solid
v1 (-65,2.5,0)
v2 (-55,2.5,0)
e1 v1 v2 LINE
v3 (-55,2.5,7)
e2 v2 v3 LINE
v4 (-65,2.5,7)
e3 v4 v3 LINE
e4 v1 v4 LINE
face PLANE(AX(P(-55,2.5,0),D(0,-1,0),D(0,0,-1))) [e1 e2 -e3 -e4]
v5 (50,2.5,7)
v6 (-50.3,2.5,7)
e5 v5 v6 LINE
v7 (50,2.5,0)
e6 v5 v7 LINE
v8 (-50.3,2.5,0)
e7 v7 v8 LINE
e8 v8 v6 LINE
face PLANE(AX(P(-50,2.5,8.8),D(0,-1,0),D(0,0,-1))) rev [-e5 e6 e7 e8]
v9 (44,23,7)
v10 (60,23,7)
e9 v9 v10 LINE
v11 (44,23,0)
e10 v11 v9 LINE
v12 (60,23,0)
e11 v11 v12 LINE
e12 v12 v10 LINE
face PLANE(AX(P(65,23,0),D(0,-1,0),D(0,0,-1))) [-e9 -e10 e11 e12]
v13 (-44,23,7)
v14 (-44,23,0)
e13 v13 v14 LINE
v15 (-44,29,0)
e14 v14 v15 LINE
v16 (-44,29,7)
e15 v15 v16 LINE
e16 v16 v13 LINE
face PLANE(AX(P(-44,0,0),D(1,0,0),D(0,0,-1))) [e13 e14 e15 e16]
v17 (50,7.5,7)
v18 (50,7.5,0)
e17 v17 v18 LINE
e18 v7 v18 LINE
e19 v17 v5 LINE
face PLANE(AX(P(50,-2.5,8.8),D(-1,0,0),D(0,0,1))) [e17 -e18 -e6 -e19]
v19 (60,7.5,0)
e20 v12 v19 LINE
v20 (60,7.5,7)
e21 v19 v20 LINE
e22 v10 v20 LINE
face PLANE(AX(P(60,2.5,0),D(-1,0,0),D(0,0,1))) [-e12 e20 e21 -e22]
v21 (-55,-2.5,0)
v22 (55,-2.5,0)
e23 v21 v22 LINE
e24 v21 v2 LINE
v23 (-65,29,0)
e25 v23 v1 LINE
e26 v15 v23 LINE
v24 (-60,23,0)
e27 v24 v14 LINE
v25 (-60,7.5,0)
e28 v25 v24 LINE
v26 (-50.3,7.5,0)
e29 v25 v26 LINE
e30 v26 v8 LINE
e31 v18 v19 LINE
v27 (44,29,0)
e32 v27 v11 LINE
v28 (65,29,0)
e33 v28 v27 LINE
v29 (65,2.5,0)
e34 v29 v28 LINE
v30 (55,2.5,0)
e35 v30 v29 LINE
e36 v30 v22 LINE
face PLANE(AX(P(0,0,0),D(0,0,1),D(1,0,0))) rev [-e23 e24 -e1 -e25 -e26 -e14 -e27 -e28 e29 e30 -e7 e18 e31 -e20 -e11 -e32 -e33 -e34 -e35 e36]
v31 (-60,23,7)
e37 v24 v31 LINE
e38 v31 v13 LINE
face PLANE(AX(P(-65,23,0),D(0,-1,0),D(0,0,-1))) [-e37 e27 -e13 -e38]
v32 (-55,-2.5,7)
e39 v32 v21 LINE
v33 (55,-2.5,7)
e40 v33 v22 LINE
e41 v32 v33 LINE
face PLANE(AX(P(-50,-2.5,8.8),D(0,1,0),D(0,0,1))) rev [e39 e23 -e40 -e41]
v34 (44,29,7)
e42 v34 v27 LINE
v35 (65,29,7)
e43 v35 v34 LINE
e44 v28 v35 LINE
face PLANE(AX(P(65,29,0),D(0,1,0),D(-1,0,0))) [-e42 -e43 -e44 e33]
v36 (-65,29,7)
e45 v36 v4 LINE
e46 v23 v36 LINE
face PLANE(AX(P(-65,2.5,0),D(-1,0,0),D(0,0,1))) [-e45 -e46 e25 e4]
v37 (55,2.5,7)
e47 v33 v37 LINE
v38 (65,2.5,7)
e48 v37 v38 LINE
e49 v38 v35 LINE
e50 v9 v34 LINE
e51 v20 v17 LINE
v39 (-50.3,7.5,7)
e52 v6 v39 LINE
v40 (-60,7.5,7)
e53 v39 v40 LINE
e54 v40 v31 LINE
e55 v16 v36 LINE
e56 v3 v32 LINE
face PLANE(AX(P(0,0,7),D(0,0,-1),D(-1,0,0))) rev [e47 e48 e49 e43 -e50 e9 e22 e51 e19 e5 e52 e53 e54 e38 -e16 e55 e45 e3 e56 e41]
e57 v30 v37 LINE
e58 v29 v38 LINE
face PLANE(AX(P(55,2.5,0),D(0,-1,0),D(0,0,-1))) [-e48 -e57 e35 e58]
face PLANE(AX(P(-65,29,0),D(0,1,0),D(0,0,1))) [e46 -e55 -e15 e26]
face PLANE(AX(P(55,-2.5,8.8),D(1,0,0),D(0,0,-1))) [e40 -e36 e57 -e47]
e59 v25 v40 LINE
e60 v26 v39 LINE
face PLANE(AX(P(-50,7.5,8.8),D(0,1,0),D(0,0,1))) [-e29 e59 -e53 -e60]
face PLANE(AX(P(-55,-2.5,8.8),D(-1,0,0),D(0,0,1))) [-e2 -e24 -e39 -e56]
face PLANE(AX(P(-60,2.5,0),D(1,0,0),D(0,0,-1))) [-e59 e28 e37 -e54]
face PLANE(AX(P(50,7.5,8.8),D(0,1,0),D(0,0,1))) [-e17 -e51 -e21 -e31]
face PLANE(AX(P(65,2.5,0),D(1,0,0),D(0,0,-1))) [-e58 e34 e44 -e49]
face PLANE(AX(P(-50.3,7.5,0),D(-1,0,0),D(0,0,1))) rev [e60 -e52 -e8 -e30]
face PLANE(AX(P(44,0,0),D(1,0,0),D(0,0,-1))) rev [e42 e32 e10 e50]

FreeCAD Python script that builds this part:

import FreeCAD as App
import Part
import Sketcher
from FreeCAD import Vector
Q = App.Units.Quantity

doc = App.newDocument("Part")
params = doc.addObject("Spreadsheet::Sheet", "Params")
for row, (alias, value) in enumerate([
    ("sketch1_width", "100 mm"),
    ("sketch1_height", "5 mm"),
    ("pad1_length", "8.8 mm"),
    ("sketch2_width", "5 mm"),
    ("sketch2_height", "10 mm"),
    ("pad2_length", "8.8 mm"),
    ("sketch3_width", "5 mm"),
    ("sketch3_height", "10 mm"),
    ("pad3_length", "8.8 mm"),
    ("sketch4_width", "5 mm"),
    ("pad4_length", "8.8 mm"),
    ("sketch5_width", "5 mm"),
    ("pad5_length", "8.8 mm"),
    ("sketch6_height", "5 mm"),
    ("sketch6_width", "0.3 mm"),
    ("pocket1_length", "8.8 mm"),
    ("sketch7_width", "5 mm"),
    ("sketch7_height", "20.5 mm"),
    ("pad6_length", "8.8 mm"),
    ("sketch8_width", "5 mm"),
    ("sketch8_height", "20.5 mm"),
    ("pad7_length", "8.8 mm"),
    ("sketch9_width", "15 mm"),
    ("sketch9_height", "6 mm"),
    ("pad8_length", "8.8 mm"),
    ("sketch10_width", "15 mm"),
    ("sketch10_height", "6 mm"),
    ("pad9_length", "8.8 mm"),
    ("sketch11_width", "1.5 mm"),
    ("pad10_length", "8.8 mm"),
    ("sketch12_width", "1.5 mm"),
    ("pad11_length", "8.8 mm"),
    ("sketch13_width", "15 mm"),
    ("sketch13_width2", "10 mm"),
    ("sketch13_width3", "110 mm"),
    ("sketch13_height", "5 mm"),
    ("sketch13_width4", "1.5 mm"),
    ("pocket2_length", "1.8 mm"),
    ("sketch14_width", "1.5 mm"),
    ("pocket3_length", "10 mm"),
    ("sketch15_width", "1.5 mm"),
    ("pocket4_length", "10 mm"),
    ("sketch16_width", "6 mm"),
    ("sketch16_height", "7 mm"),
    ("pad12_length", "5 mm"),
    ("sketch17_width", "6 mm"),
    ("sketch17_height", "7 mm"),
    ("pad13_length", "5 mm"),
    ("sketch18_width", "6 mm"),
    ("sketch18_height", "7 mm"),
    ("pad14_length", "1 mm"),
    ("sketch19_width", "6 mm"),
    ("sketch19_height", "7 mm"),
    ("pad15_length", "1 mm"),
], start=1):
    params.set(f"A{row}", alias)
    params.set(f"B{row}", "=" + value)
    params.setAlias(f"B{row}", alias)

body = doc.addObject("PartDesign::Body", "Body")

# Sketch on XY plane
sketch1 = body.newObject("Sketcher::SketchObject", "Sketch")
sketch1.AttachmentSupport = (doc.getObject("XY_Plane"), [""])
sketch1.MapMode = "FlatFace"
sketch1.addGeometry(Part.LineSegment(Vector(-50, 2, 0), Vector(-50, -2, 0)), False)
sketch1.addGeometry(Part.LineSegment(Vector(-50, -2, 0), Vector(50, -2, 0)), False)
sketch1.addGeometry(Part.LineSegment(Vector(50, -2, 0), Vector(50, 2, 0)), False)
sketch1.addGeometry(Part.LineSegment(Vector(50, 2, 0), Vector(-50, 2, 0)), False)
sketch1.addConstraint(Sketcher.Constraint("Coincident", 0, 2, 1, 1))
sketch1.addConstraint(Sketcher.Constraint("Coincident", 1, 2, 2, 1))
sketch1.addConstraint(Sketcher.Constraint("Coincident", 2, 2, 3, 1))
sketch1.addConstraint(Sketcher.Constraint("Coincident", 3, 2, 0, 1))
sketch1.addConstraint(Sketcher.Constraint("Vertical", 0))
sketch1.addConstraint(Sketcher.Constraint("Horizontal", 1))
sketch1.addConstraint(Sketcher.Constraint("Vertical", 2))
sketch1.addConstraint(Sketcher.Constraint("Horizontal", 3))
sketch1.addConstraint(Sketcher.Constraint("Symmetric", 0, 2, 2, 2, -1, 1))
sketch1.addConstraint(Sketcher.Constraint("DistanceX", 1, 1, 1, 2, Q("100 mm")))
sketch1.addConstraint(Sketcher.Constraint("DistanceY", 0, 2, 0, 1, Q("5 mm")))
sketch1.setExpression("Constraints[9]", "Params.sketch1_width")
sketch1.setExpression("Constraints[10]", "Params.sketch1_height")
pad1 = body.newObject("PartDesign::Pad", "Pad")
pad1.Profile = sketch1
pad1.setExpression("Length", "Params.pad1_length")

# Sketch on XY plane
sketch2 = body.newObject("Sketcher::SketchObject", "Sketch001")
sketch2.AttachmentSupport = (doc.getObject("XY_Plane"), [""])
sketch2.MapMode = "FlatFace"
sketch2.addGeometry(Part.LineSegment(Vector(55, 8, 0), Vector(55, -2, 0)), False)
sketch2.addGeometry(Part.LineSegment(Vector(55, -2, 0), Vector(50, -2, 0)), False)
sketch2.addGeometry(Part.LineSegment(Vector(50, -2, 0), Vector(50, 8, 0)), False)
sketch2.addGeometry(Part.LineSegment(Vector(50, 8, 0), Vector(55, 8, 0)), False)
sketch2.addConstraint(Sketcher.Constraint("Coincident", 0, 2, 1, 1))
sketch2.addConstraint(Sketcher.Constraint("Coincident", 1, 2, 2, 1))
sketch2.addConstraint(Sketcher.Constraint("Coincident", 2, 2, 3, 1))
sketch2.addConstraint(Sketcher.Constraint("Coincident", 3, 2, 0, 1))
sketch2.addConstraint(Sketcher.Constraint("Vertical", 0))
sketch2.addConstraint(Sketcher.Constraint("Horizontal", 1))
sketch2.addConstraint(Sketcher.Constraint("Vertical", 2))
sketch2.addConstraint(Sketcher.Constraint("Horizontal", 3))
sketch2.addConstraint(Sketcher.Constraint("DistanceX", 1, 2, 1, 1, Q("5 mm")))
sketch2.addConstraint(Sketcher.Constraint("DistanceY", 0, 2, 0, 1, Q("10 mm")))
sketch2.addConstraint(Sketcher.Constraint("DistanceX", -1, 1, 0, 2, Q("55 mm")))
sketch2.addConstraint(Sketcher.Constraint("DistanceY", 0, 2, -1, 1, Q("2.5 mm")))
sketch2.setExpression("Constraints[8]", "Params.sketch2_width")
sketch2.setExpression("Constraints[9]", "Params.sketch2_height")
pad2 = body.newObject("PartDesign::Pad", "Pad001")
pad2.Profile = sketch2
pad2.setExpression("Length", "Params.pad2_length")

# Sketch on XY plane
sketch3 = body.newObject("Sketcher::SketchObject", "Sketch002")
sketch3.AttachmentSupport = (doc.getObject("XY_Plane"), [""])
sketch3.MapMode = "FlatFace"
sketch3.addGeometry(Part.LineSegment(Vector(-50, 8, 0), Vector(-50, -2, 0)), False)
sketch3.addGeometry(Part.LineSegment(Vector(-50, -2, 0), Vector(-55, -2, 0)), False)
sketch3.addGeometry(Part.LineSegment(Vector(-55, -2, 0), Vector(-55, 8, 0)), False)
sketch3.addGeometry(Part.LineSegment(Vector(-55, 8, 0), Vector(-50, 8, 0)), False)
sketch3.addConstraint(Sketcher.Constraint("Coincident", 0, 2, 1, 1))
sketch3.addConstraint(Sketcher.Constraint("Coincident", 1, 2, 2, 1))
sketch3.addConstraint(Sketcher.Constraint("Coincident", 2, 2, 3, 1))
sketch3.addConstraint(Sketcher.Constraint("Coincident", 3, 2, 0, 1))
sketch3.addConstraint(Sketcher.Constraint("Vertical", 0))
sketch3.addConstraint(Sketcher.Constraint("Horizontal", 1))
sketch3.addConstraint(Sketcher.Constraint("Vertical", 2))
sketch3.addConstraint(Sketcher.Constraint("Horizontal", 3))
sketch3.addConstraint(Sketcher.Constraint("DistanceX", 1, 2, 1, 1, Q("5 mm")))
sketch3.addConstraint(Sketcher.Constraint("DistanceY", 0, 2, 0, 1, Q("10 mm")))
sketch3.addConstraint(Sketcher.Constraint("DistanceX", 0, 2, -1, 1, Q("50 mm")))
sketch3.addConstraint(Sketcher.Constraint("DistanceY", 0, 2, -1, 1, Q("2.5 mm")))
sketch3.setExpression("Constraints[8]", "Params.sketch3_width")
sketch3.setExpression("Constraints[9]", "Params.sketch3_height")
pad3 = body.newObject("PartDesign::Pad", "Pad002")
pad3.Profile = sketch3
pad3.setExpression("Length", "Params.pad3_length")

# Sketch on XY plane
sketch4 = body.newObject("Sketcher::SketchObject", "Sketch003")
sketch4.AttachmentSupport = (doc.getObject("XY_Plane"), [""])
sketch4.MapMode = "FlatFace"
sketch4.AttachmentOffset = App.Placement(Vector(0, 0, 8.8), App.Rotation())
sketch4.addGeometry(Part.LineSegment(Vector(-60, 8, 0), Vector(-60, 2, 0)), False)
sketch4.addGeometry(Part.LineSegment(Vector(-60, 2, 0), Vector(-55, 2, 0)), False)
sketch4.addGeometry(Part.LineSegment(Vector(-55, 2, 0), Vector(-55, 8, 0)), False)
sketch4.addGeometry(Part.LineSegment(Vector(-55, 8, 0), Vector(-60, 8, 0)), False)
sketch4.addConstraint(Sketcher.Constraint("Coincident", 0, 2, 1, 1))
sketch4.addConstraint(Sketcher.Constraint("Coincident", 1, 2, 2, 1))
sketch4.addConstraint(Sketcher.Constraint("Coincident", 2, 2, 3, 1))
sketch4.addConstraint(Sketcher.Constraint("Coincident", 3, 2, 0, 1))
sketch4.addConstraint(Sketcher.Constraint("Vertical", 0))
sketch4.addConstraint(Sketcher.Constraint("Horizontal", 1))
sketch4.addConstraint(Sketcher.Constraint("Vertical", 2))
sketch4.addConstraint(Sketcher.Constraint("Horizontal", 3))
sketch4.addConstraint(Sketcher.Constraint("Equal", 3, 0))
sketch4.addConstraint(Sketcher.Constraint("DistanceX", 1, 1, 1, 2, Q("5 mm")))
sketch4.addConstraint(Sketcher.Constraint("DistanceX", 0, 2, -1, 1, Q("60 mm")))
sketch4.addConstraint(Sketcher.Constraint("DistanceY", -1, 1, 0, 2, Q("2.5 mm")))
sketch4.setExpression("Constraints[9]", "Params.sketch4_width")
pad4 = body.newObject("PartDesign::Pad", "Pad003")
pad4.Profile = sketch4
pad4.setExpression("Length", "Params.pad4_length")
pad4.Reversed = True

# Sketch on XY plane
sketch5 = body.newObject("Sketcher::SketchObject", "Sketch004")
sketch5.AttachmentSupport = (doc.getObject("XY_Plane"), [""])
sketch5.MapMode = "FlatFace"
sketch5.AttachmentOffset = App.Placement(Vector(0, 0, 8.8), App.Rotation())
sketch5.addGeometry(Part.LineSegment(Vector(55, 8, 0), Vector(55, 2, 0)), False)
sketch5.addGeometry(Part.LineSegment(Vector(55, 2, 0), Vector(60, 2, 0)), False)
sketch5.addGeometry(Part.LineSegment(Vector(60, 2, 0), Vector(60, 8, 0)), False)
sketch5.addGeometry(Part.LineSegment(Vector(60, 8, 0), Vector(55, 8, 0)), False)
sketch5.addConstraint(Sketcher.Constraint("Coincident", 0, 2, 1, 1))
sketch5.addConstraint(Sketcher.Constraint("Coincident", 1, 2, 2, 1))
sketch5.addConstraint(Sketcher.Constraint("Coincident", 2, 2, 3, 1))
sketch5.addConstraint(Sketcher.Constraint("Coincident", 3, 2, 0, 1))
sketch5.addConstraint(Sketcher.Constraint("Vertical", 0))
sketch5.addConstraint(Sketcher.Constraint("Horizontal", 1))
sketch5.addConstraint(Sketcher.Constraint("Vertical", 2))
sketch5.addConstraint(Sketcher.Constraint("Horizontal", 3))
sketch5.addConstraint(Sketcher.Constraint("Equal", 3, 0))
sketch5.addConstraint(Sketcher.Constraint("DistanceX", 1, 1, 1, 2, Q("5 mm")))
sketch5.addConstraint(Sketcher.Constraint("DistanceX", -1, 1, 0, 2, Q("55 mm")))
sketch5.addConstraint(Sketcher.Constraint("DistanceY", -1, 1, 0, 2, Q("2.5 mm")))
sketch5.setExpression("Constraints[9]", "Params.sketch5_width")
pad5 = body.newObject("PartDesign::Pad", "Pad004")
pad5.Profile = sketch5
pad5.setExpression("Length", "Params.pad5_length")
pad5.Reversed = True

# Sketch on XY plane
sketch6 = body.newObject("Sketcher::SketchObject", "Sketch005")
sketch6.AttachmentSupport = (doc.getObject("XY_Plane"), [""])
sketch6.MapMode = "FlatFace"
sketch6.AttachmentOffset = App.Placement(Vector(0, 0, 8.8), App.Rotation())
sketch6.addGeometry(Part.LineSegment(Vector(-50.3, 7.5, 0), Vector(-50.3, 2.5, 0)), False)
sketch6.addGeometry(Part.LineSegment(Vector(-50.3, 2.5, 0), Vector(-50, 2.5, 0)), False)
sketch6.addGeometry(Part.LineSegment(Vector(-50, 2.5, 0), Vector(-50, 7.5, 0)), False)
sketch6.addGeometry(Part.LineSegment(Vector(-50, 7.5, 0), Vector(-50.3, 7.5, 0)), False)
sketch6.addConstraint(Sketcher.Constraint("Coincident", 0, 2, 1, 1))
sketch6.addConstraint(Sketcher.Constraint("Coincident", 1, 2, 2, 1))
sketch6.addConstraint(Sketcher.Constraint("Coincident", 2, 2, 3, 1))
sketch6.addConstraint(Sketcher.Constraint("Coincident", 3, 2, 0, 1))
sketch6.addConstraint(Sketcher.Constraint("Vertical", 0))
sketch6.addConstraint(Sketcher.Constraint("Horizontal", 1))
sketch6.addConstraint(Sketcher.Constraint("Vertical", 2))
sketch6.addConstraint(Sketcher.Constraint("Horizontal", 3))
sketch6.addConstraint(Sketcher.Constraint("DistanceY", 0, 2, 0, 1, Q("5 mm")))
sketch6.addConstraint(Sketcher.Constraint("DistanceX", 1, 1, 1, 2, Q("0.3 mm")))
sketch6.addConstraint(Sketcher.Constraint("DistanceX", 1, 2, -1, 1, Q("50 mm")))
sketch6.addConstraint(Sketcher.Constraint("DistanceY", -1, 1, 0, 2, Q("2.5 mm")))
sketch6.setExpression("Constraints[8]", "Params.sketch6_height")
sketch6.setExpression("Constraints[9]", "Params.sketch6_width")
pocket1 = body.newObject("PartDesign::Pocket", "Pocket")
pocket1.Profile = sketch6
pocket1.setExpression("Length", "Params.pocket1_length")

# Sketch on XY plane
sketch7 = body.newObject("Sketcher::SketchObject", "Sketch006")
sketch7.AttachmentSupport = (doc.getObject("XY_Plane"), [""])
sketch7.MapMode = "FlatFace"
sketch7.AttachmentOffset = App.Placement(Vector(0, 0, 8.8), App.Rotation())
sketch7.addGeometry(Part.LineSegment(Vector(-65, 23, 0), Vector(-65, 2, 0)), False)
sketch7.addGeometry(Part.LineSegment(Vector(-65, 2, 0), Vector(-60, 2, 0)), False)
sketch7.addGeometry(Part.LineSegment(Vector(-60, 2, 0), Vector(-60, 23, 0)), False)
sketch7.addGeometry(Part.LineSegment(Vector(-60, 23, 0), Vector(-65, 23, 0)), False)
sketch7.addConstraint(Sketcher.Constraint("Coincident", 0, 2, 1, 1))
sketch7.addConstraint(Sketcher.Constraint("Coincident", 1, 2, 2, 1))
sketch7.addConstraint(Sketcher.Constraint("Coincident", 2, 2, 3, 1))
sketch7.addConstraint(Sketcher.Constraint("Coincident", 3, 2, 0, 1))
sketch7.addConstraint(Sketcher.Constraint("Vertical", 0))
sketch7.addConstraint(Sketcher.Constraint("Horizontal", 1))
sketch7.addConstraint(Sketcher.Constraint("Vertical", 2))
sketch7.addConstraint(Sketcher.Constraint("Horizontal", 3))
sketch7.addConstraint(Sketcher.Constraint("DistanceX", 1, 1, 1, 2, Q("5 mm")))
sketch7.addConstraint(Sketcher.Constraint("DistanceY", 0, 2, 0, 1, Q("20.5 mm")))
sketch7.addConstraint(Sketcher.Constraint("DistanceX", 0, 2, -1, 1, Q("65 mm")))
sketch7.addConstraint(Sketcher.Constraint("DistanceY", -1, 1, 2, 2, Q("23 mm")))
sketch7.setExpression("Constraints[8]", "Params.sketch7_width")
sketch7.setExpression("Constraints[9]", "Params.sketch7_height")
pad6 = body.newObject("PartDesign::Pad", "Pad005")
pad6.Profile = sketch7
pad6.setExpression("Length", "Params.pad6_length")
pad6.Reversed = True

# Sketch on XY plane
sketch8 = body.newObject("Sketcher::SketchObject", "Sketch007")
sketch8.AttachmentSupport = (doc.getObject("XY_Plane"), [""])
sketch8.MapMode = "FlatFace"
sketch8.AttachmentOffset = App.Placement(Vector(0, 0, 8.8), App.Rotation())
sketch8.addGeometry(Part.LineSegment(Vector(60, 23, 0), Vector(60, 2, 0)), False)
sketch8.addGeometry(Part.LineSegment(Vector(60, 2, 0), Vector(65, 2, 0)), False)
sketch8.addGeometry(Part.LineSegment(Vector(65, 2, 0), Vector(65, 23, 0)), False)
sketch8.addGeometry(Part.LineSegment(Vector(65, 23, 0), Vector(60, 23, 0)), False)
sketch8.addConstraint(Sketcher.Constraint("Coincident", 0, 2, 1, 1))
sketch8.addConstraint(Sketcher.Constraint("Coincident", 1, 2, 2, 1))
sketch8.addConstraint(Sketcher.Constraint("Coincident", 2, 2, 3, 1))
sketch8.addConstraint(Sketcher.Constraint("Coincident", 3, 2, 0, 1))
sketch8.addConstraint(Sketcher.Constraint("Vertical", 0))
sketch8.addConstraint(Sketcher.Constraint("Horizontal", 1))
sketch8.addConstraint(Sketcher.Constraint("Vertical", 2))
sketch8.addConstraint(Sketcher.Constraint("Horizontal", 3))
sketch8.addConstraint(Sketcher.Constraint("DistanceX", 1, 1, 1, 2, Q("5 mm")))
sketch8.addConstraint(Sketcher.Constraint("DistanceY", 0, 2, 0, 1, Q("20.5 mm")))
sketch8.addConstraint(Sketcher.Constraint("DistanceX", -1, 1, 0, 2, Q("60 mm")))
sketch8.addConstraint(Sketcher.Constraint("DistanceY", -1, 1, 2, 2, Q("23 mm")))
sketch8.setExpression("Constraints[8]", "Params.sketch8_width")
sketch8.setExpression("Constraints[9]", "Params.sketch8_height")
pad7 = body.newObject("PartDesign::Pad", "Pad006")
pad7.Profile = sketch8
pad7.setExpression("Length", "Params.pad7_length")
pad7.Reversed = True

# Sketch on XY plane
sketch9 = body.newObject("Sketcher::SketchObject", "Sketch008")
sketch9.AttachmentSupport = (doc.getObject("XY_Plane"), [""])
sketch9.MapMode = "FlatFace"
sketch9.AttachmentOffset = App.Placement(Vector(0, 0, 8.8), App.Rotation())
sketch9.addGeometry(Part.LineSegment(Vector(-65, 29, 0), Vector(-65, 23, 0)), False)
sketch9.addGeometry(Part.LineSegment(Vector(-65, 23, 0), Vector(-50, 23, 0)), False)
sketch9.addGeometry(Part.LineSegment(Vector(-50, 23, 0), Vector(-50, 29, 0)), False)
sketch9.addGeometry(Part.LineSegment(Vector(-50, 29, 0), Vector(-65, 29, 0)), False)
sketch9.addConstraint(Sketcher.Constraint("Coincident", 0, 2, 1, 1))
sketch9.addConstraint(Sketcher.Constraint("Coincident", 1, 2, 2, 1))
sketch9.addConstraint(Sketcher.Constraint("Coincident", 2, 2, 3, 1))
sketch9.addConstraint(Sketcher.Constraint("Coincident", 3, 2, 0, 1))
sketch9.addConstraint(Sketcher.Constraint("Vertical", 0))
sketch9.addConstraint(Sketcher.Constraint("Horizontal", 1))
sketch9.addConstraint(Sketcher.Constraint("Vertical", 2))
sketch9.addConstraint(Sketcher.Constraint("Horizontal", 3))
sketch9.addConstraint(Sketcher.Constraint("DistanceX", 1, 1, 1, 2, Q("15 mm")))
sketch9.addConstraint(Sketcher.Constraint("DistanceY", 0, 2, 0, 1, Q("6 mm")))
sketch9.addConstraint(Sketcher.Constraint("DistanceX", 0, 2, -1, 1, Q("65 mm")))
sketch9.addConstraint(Sketcher.Constraint("DistanceY", -1, 1, 0, 2, Q("23 mm")))
sketch9.setExpression("Constraints[8]", "Params.sketch9_width")
sketch9.setExpression("Constraints[9]", "Params.sketch9_height")
pad8 = body.newObject("PartDesign::Pad", "Pad007")
pad8.Profile = sketch9
pad8.setExpression("Length", "Params.pad8_length")
pad8.Reversed = True

# Sketch on XY plane
sketch10 = body.newObject("Sketcher::SketchObject", "Sketch009")
sketch10.AttachmentSupport = (doc.getObject("XY_Plane"), [""])
sketch10.MapMode = "FlatFace"
sketch10.AttachmentOffset = App.Placement(Vector(0, 0, 8.8), App.Rotation())
sketch10.addGeometry(Part.LineSegment(Vector(50, 29, 0), Vector(50, 23, 0)), False)
sketch10.addGeometry(Part.LineSegment(Vector(50, 23, 0), Vector(65, 23, 0)), False)
sketch10.addGeometry(Part.LineSegment(Vector(65, 23, 0), Vector(65, 29, 0)), False)
sketch10.addGeometry(Part.LineSegment(Vector(65, 29, 0), Vector(50, 29, 0)), False)
sketch10.addConstraint(Sketcher.Constraint("Coincident", 0, 2, 1, 1))
sketch10.addConstraint(Sketcher.Constraint("Coincident", 1, 2, 2, 1))
sketch10.addConstraint(Sketcher.Constraint("Coincident", 2, 2, 3, 1))
sketch10.addConstraint(Sketcher.Constraint("Coincident", 3, 2, 0, 1))
sketch10.addConstraint(Sketcher.Constraint("Vertical", 0))
sketch10.addConstraint(Sketcher.Constraint("Horizontal", 1))
sketch10.addConstraint(Sketcher.Constraint("Vertical", 2))
sketch10.addConstraint(Sketcher.Constraint("Horizontal", 3))
sketch10.addConstraint(Sketcher.Constraint("DistanceX", 1, 1, 1, 2, Q("15 mm")))
sketch10.addConstraint(Sketcher.Constraint("DistanceY", 0, 2, 0, 1, Q("6 mm")))
sketch10.addConstraint(Sketcher.Constraint("DistanceX", -1, 1, 0, 2, Q("50 mm")))
sketch10.addConstraint(Sketcher.Constraint("DistanceY", -1, 1, 0, 2, Q("23 mm")))
sketch10.setExpression("Constraints[8]", "Params.sketch10_width")
sketch10.setExpression("Constraints[9]", "Params.sketch10_height")
pad9 = body.newObject("PartDesign::Pad", "Pad008")
pad9.Profile = sketch10
pad9.setExpression("Length", "Params.pad9_length")
pad9.Reversed = True

# Sketch on XY plane
sketch11 = body.newObject("Sketcher::SketchObject", "Sketch010")
sketch11.AttachmentSupport = (doc.getObject("XY_Plane"), [""])
sketch11.MapMode = "FlatFace"
sketch11.AttachmentOffset = App.Placement(Vector(0, 0, 8.8), App.Rotation())
sketch11.addGeometry(Part.LineSegment(Vector(-51.5, 23, 0), Vector(-51.5, 21.5, 0)), False)
sketch11.addGeometry(Part.LineSegment(Vector(-51.5, 21.5, 0), Vector(-50, 21.5, 0)), False)
sketch11.addGeometry(Part.LineSegment(Vector(-50, 21.5, 0), Vector(-50, 23, 0)), False)
sketch11.addGeometry(Part.LineSegment(Vector(-50, 23, 0), Vector(-51.5, 23, 0)), False)
sketch11.addConstraint(Sketcher.Constraint("Coincident", 0, 2, 1, 1))
sketch11.addConstraint(Sketcher.Constraint("Coincident", 1, 2, 2, 1))
sketch11.addConstraint(Sketcher.Constraint("Coincident", 2, 2, 3, 1))
sketch11.addConstraint(Sketcher.Constraint("Coincident", 3, 2, 0, 1))
sketch11.addConstraint(Sketcher.Constraint("Vertical", 0))
sketch11.addConstraint(Sketcher.Constraint("Horizontal", 1))
sketch11.addConstraint(Sketcher.Constraint("Vertical", 2))
sketch11.addConstraint(Sketcher.Constraint("Horizontal", 3))
sketch11.addConstraint(Sketcher.Constraint("Equal", 3, 0))
sketch11.addConstraint(Sketcher.Constraint("DistanceX", 1, 1, 1, 2, Q("1.5 mm")))
sketch11.addConstraint(Sketcher.Constraint("DistanceX", 1, 2, -1, 1, Q("50 mm")))
sketch11.addConstraint(Sketcher.Constraint("DistanceY", -1, 1, 2, 2, Q("23 mm")))
sketch11.setExpression("Constraints[9]", "Params.sketch11_width")
pad10 = body.newObject("PartDesign::Pad", "Pad009")
pad10.Profile = sketch11
pad10.setExpression("Length", "Params.pad10_length")
pad10.Reversed = True

# Sketch on XY plane
sketch12 = body.newObject("Sketcher::SketchObject", "Sketch011")
sketch12.AttachmentSupport = (doc.getObject("XY_Plane"), [""])
sketch12.MapMode = "FlatFace"
sketch12.AttachmentOffset = App.Placement(Vector(0, 0, 8.8), App.Rotation())
sketch12.addGeometry(Part.LineSegment(Vector(50, 23, 0), Vector(50, 21.5, 0)), False)
sketch12.addGeometry(Part.LineSegment(Vector(50, 21.5, 0), Vector(51.5, 21.5, 0)), False)
sketch12.addGeometry(Part.LineSegment(Vector(51.5, 21.5, 0), Vector(51.5, 23, 0)), False)
sketch12.addGeometry(Part.LineSegment(Vector(51.5, 23, 0), Vector(50, 23, 0)), False)
sketch12.addConstraint(Sketcher.Constraint("Coincident", 0, 2, 1, 1))
sketch12.addConstraint(Sketcher.Constraint("Coincident", 1, 2, 2, 1))
sketch12.addConstraint(Sketcher.Constraint("Coincident", 2, 2, 3, 1))
sketch12.addConstraint(Sketcher.Constraint("Coincident", 3, 2, 0, 1))
sketch12.addConstraint(Sketcher.Constraint("Vertical", 0))
sketch12.addConstraint(Sketcher.Constraint("Horizontal", 1))
sketch12.addConstraint(Sketcher.Constraint("Vertical", 2))
sketch12.addConstraint(Sketcher.Constraint("Horizontal", 3))
sketch12.addConstraint(Sketcher.Constraint("Equal", 3, 0))
sketch12.addConstraint(Sketcher.Constraint("DistanceX", 1, 1, 1, 2, Q("1.5 mm")))
sketch12.addConstraint(Sketcher.Constraint("DistanceX", -1, 1, 0, 2, Q("50 mm")))
sketch12.addConstraint(Sketcher.Constraint("DistanceY", -1, 1, 2, 2, Q("23 mm")))
sketch12.setExpression("Constraints[9]", "Params.sketch12_width")
pad11 = body.newObject("PartDesign::Pad", "Pad010")
pad11.Profile = sketch12
pad11.setExpression("Length", "Params.pad11_length")
pad11.Reversed = True

# Sketch on XY plane
sketch13 = body.newObject("Sketcher::SketchObject", "Sketch012")
sketch13.AttachmentSupport = (doc.getObject("XY_Plane"), [""])
sketch13.MapMode = "FlatFace"
sketch13.AttachmentOffset = App.Placement(Vector(0, 0, 8.8), App.Rotation())
sketch13.addGeometry(Part.LineSegment(Vector(-51.5, 23, 0), Vector(-51.5, 21.5, 0)), False)
sketch13.addGeometry(Part.LineSegment(Vector(-51.5, 21.5, 0), Vector(-50, 21.5, 0)), False)
sketch13.addGeometry(Part.LineSegment(Vector(-50, 21.5, 0), Vector(-50, 29, 0)), False)
sketch13.addGeometry(Part.LineSegment(Vector(-50, 29, 0), Vector(-65, 29, 0)), False)
sketch13.addGeometry(Part.LineSegment(Vector(-65, 29, 0), Vector(-65, 2.5, 0)), False)
sketch13.addGeometry(Part.LineSegment(Vector(-65, 2.5, 0), Vector(-55, 2.5, 0)), False)
sketch13.addGeometry(Part.LineSegment(Vector(-55, 2.5, 0), Vector(-55, -2.5, 0)), False)
sketch13.addGeometry(Part.LineSegment(Vector(-55, -2.5, 0), Vector(55, -2.5, 0)), False)
sketch13.addGeometry(Part.LineSegment(Vector(55, -2.5, 0), Vector(55, 2.5, 0)), False)
sketch13.addGeometry(Part.LineSegment(Vector(55, 2.5, 0), Vector(65, 2.5, 0)), False)
sketch13.addGeometry(Part.LineSegment(Vector(65, 2.5, 0), Vector(65, 29, 0)), False)
sketch13.addGeometry(Part.LineSegment(Vector(65, 29, 0), Vector(50, 29, 0)), False)
sketch13.addGeometry(Part.LineSegment(Vector(50, 29, 0), Vector(50, 21.5, 0)), False)
sketch13.addGeometry(Part.LineSegment(Vector(50, 21.5, 0), Vector(51.5, 21.5, 0)), False)
sketch13.addGeometry(Part.LineSegment(Vector(51.5, 21.5, 0), Vector(51.5, 23, 0)), False)
sketch13.addGeometry(Part.LineSegment(Vector(51.5, 23, 0), Vector(60, 23, 0)), False)
sketch13.addGeometry(Part.LineSegment(Vector(60, 23, 0), Vector(60, 7.5, 0)), False)
sketch13.addGeometry(Part.LineSegment(Vector(60, 7.5, 0), Vector(50, 7.5, 0)), False)
sketch13.addGeometry(Part.LineSegment(Vector(50, 7.5, 0), Vector(50, 2.5, 0)), False)
sketch13.addGeometry(Part.LineSegment(Vector(50, 2.5, 0), Vector(-50.3, 2.5, 0)), False)
sketch13.addGeometry(Part.LineSegment(Vector(-50.3, 2.5, 0), Vector(-50.3, 7.5, 0)), False)
sketch13.addGeometry(Part.LineSegment(Vector(-50.3, 7.5, 0), Vector(-60, 7.5, 0)), False)
sketch13.addGeometry(Part.LineSegment(Vector(-60, 7.5, 0), Vector(-60, 23, 0)), False)
sketch13.addGeometry(Part.LineSegment(Vector(-60, 23, 0), Vector(-51.5, 23, 0)), False)
sketch13.addConstraint(Sketcher.Constraint("Coincident", 0, 2, 1, 1))
sketch13.addConstraint(Sketcher.Constraint("Coincident", 1, 2, 2, 1))
sketch13.addConstraint(Sketcher.Constraint("Coincident", 2, 2, 3, 1))
sketch13.addConstraint(Sketcher.Constraint("Coincident", 3, 2, 4, 1))
sketch13.addConstraint(Sketcher.Constraint("Coincident", 4, 2, 5, 1))
sketch13.addConstraint(Sketcher.Constraint("Coincident", 5, 2, 6, 1))
sketch13.addConstraint(Sketcher.Constraint("Coincident", 6, 2, 7, 1))
sketch13.addConstraint(Sketcher.Constraint("Coincident", 7, 2, 8, 1))
sketch13.addConstraint(Sketcher.Constraint("Coincident", 8, 2, 9, 1))
sketch13.addConstraint(Sketcher.Constraint("Coincident", 9, 2, 10, 1))
sketch13.addConstraint(Sketcher.Constraint("Coincident", 10, 2, 11, 1))
sketch13.addConstraint(Sketcher.Constraint("Coincident", 11, 2, 12, 1))
sketch13.addConstraint(Sketcher.Constraint("Coincident", 12, 2, 13, 1))
sketch13.addConstraint(Sketcher.Constraint("Coincident", 13, 2, 14, 1))
sketch13.addConstraint(Sketcher.Constraint("Coincident", 14, 2, 15, 1))
sketch13.addConstraint(Sketcher.Constraint("Coincident", 15, 2, 16, 1))
sketch13.addConstraint(Sketcher.Constraint("Coincident", 16, 2, 17, 1))
sketch13.addConstraint(Sketcher.Constraint("Coincident", 17, 2, 18, 1))
sketch13.addConstraint(Sketcher.Constraint("Coincident", 18, 2, 19, 1))
sketch13.addConstraint(Sketcher.Constraint("Coincident", 19, 2, 20, 1))
sketch13.addConstraint(Sketcher.Constraint("Coincident", 20, 2, 21, 1))
sketch13.addConstraint(Sketcher.Constraint("Coincident", 21, 2, 22, 1))
sketch13.addConstraint(Sketcher.Constraint("Coincident", 22, 2, 23, 1))
sketch13.addConstraint(Sketcher.Constraint("Coincident", 23, 2, 0, 1))
sketch13.addConstraint(Sketcher.Constraint("Vertical", 0))
sketch13.addConstraint(Sketcher.Constraint("Horizontal", 1))
sketch13.addConstraint(Sketcher.Constraint("Vertical", 2))
sketch13.addConstraint(Sketcher.Constraint("Horizontal", 3))
sketch13.addConstraint(Sketcher.Constraint("Vertical", 4))
sketch13.addConstraint(Sketcher.Constraint("Horizontal", 5))
sketch13.addConstraint(Sketcher.Constraint("Vertical", 6))
sketch13.addConstraint(Sketcher.Constraint("Horizontal", 7))
sketch13.addConstraint(Sketcher.Constraint("Vertical", 8))
sketch13.addConstraint(Sketcher.Constraint("Horizontal", 9))
sketch13.addConstraint(Sketcher.Constraint("Vertical", 10))
sketch13.addConstraint(Sketcher.Constraint("Horizontal", 11))
sketch13.addConstraint(Sketcher.Constraint("Vertical", 12))
sketch13.addConstraint(Sketcher.Constraint("Horizontal", 13))
sketch13.addConstraint(Sketcher.Constraint("Vertical", 14))
sketch13.addConstraint(Sketcher.Constraint("Horizontal", 15))
sketch13.addConstraint(Sketcher.Constraint("Vertical", 16))
sketch13.addConstraint(Sketcher.Constraint("Horizontal", 17))
sketch13.addConstraint(Sketcher.Constraint("Vertical", 18))
sketch13.addConstraint(Sketcher.Constraint("Horizontal", 19))
sketch13.addConstraint(Sketcher.Constraint("Vertical", 20))
sketch13.addConstraint(Sketcher.Constraint("Horizontal", 21))
sketch13.addConstraint(Sketcher.Constraint("Vertical", 22))
sketch13.addConstraint(Sketcher.Constraint("Horizontal", 23))
sketch13.addConstraint(Sketcher.Constraint("Symmetric", 5, 2, 7, 2, -1, 1))
sketch13.addConstraint(Sketcher.Constraint("Symmetric", 4, 2, 9, 2, -2))
sketch13.addConstraint(Sketcher.Constraint("Symmetric", 2, 2, 11, 2, -2))
sketch13.addConstraint(Sketcher.Constraint("Symmetric", 0, 2, 13, 2, -2))
sketch13.addConstraint(Sketcher.Constraint("Symmetric", 16, 2, 21, 2, -2))
sketch13.addConstraint(Sketcher.Constraint("Horizontal", 9, 2, 18, 2))
sketch13.addConstraint(Sketcher.Constraint("Horizontal", 15, 2, 22, 2))
sketch13.addConstraint(Sketcher.Constraint("Vertical", 12, 2, 17, 2))
sketch13.addConstraint(Sketcher.Constraint("Equal", 9, 17))
sketch13.addConstraint(Sketcher.Constraint("Equal", 13, 0))
sketch13.addConstraint(Sketcher.Constraint("Equal", 8, 18))
sketch13.addConstraint(Sketcher.Constraint("DistanceX", 3, 2, 3, 1, Q("15 mm")))
sketch13.addConstraint(Sketcher.Constraint("DistanceX", 5, 1, 5, 2, Q("10 mm")))
sketch13.addConstraint(Sketcher.Constraint("DistanceX", 7, 1, 7, 2, Q("110 mm")))
sketch13.addConstraint(Sketcher.Constraint("DistanceY", 6, 2, 6, 1, Q("5 mm")))
sketch13.addConstraint(Sketcher.Constraint("DistanceX", 1, 1, 1, 2, Q("1.5 mm")))
sketch13.addConstraint(Sketcher.Constraint("DistanceX", 19, 2, 19, 1, Q("100.3 mm")))
sketch13.addConstraint(Sketcher.Constraint("DistanceY", 2, 1, 2, 2, Q("7.5 mm")))
sketch13.addConstraint(Sketcher.Constraint("DistanceY", 4, 2, 4, 1, Q("26.5 mm")))
sketch13.setExpression("Constraints[59]", "Params.sketch13_width")
sketch13.setExpression("Constraints[60]", "Params.sketch13_width2")
sketch13.setExpression("Constraints[61]", "Params.sketch13_width3")
sketch13.setExpression("Constraints[62]", "Params.sketch13_height")
sketch13.setExpression("Constraints[63]", "Params.sketch13_width4")
pocket2 = body.newObject("PartDesign::Pocket", "Pocket001")
pocket2.Profile = sketch13
pocket2.setExpression("Length", "Params.pocket2_length")

# Sketch on XY plane
sketch14 = body.newObject("Sketcher::SketchObject", "Sketch013")
sketch14.AttachmentSupport = (doc.getObject("XY_Plane"), [""])
sketch14.MapMode = "FlatFace"
sketch14.AttachmentOffset = App.Placement(Vector(0, 0, 7), App.Rotation())
sketch14.addGeometry(Part.LineSegment(Vector(-51.5, 23, 0), Vector(-51.5, 21.5, 0)), False)
sketch14.addGeometry(Part.LineSegment(Vector(-51.5, 21.5, 0), Vector(-50, 21.5, 0)), False)
sketch14.addGeometry(Part.LineSegment(Vector(-50, 21.5, 0), Vector(-50, 23, 0)), False)
sketch14.addGeometry(Part.LineSegment(Vector(-50, 23, 0), Vector(-51.5, 23, 0)), False)
sketch14.addConstraint(Sketcher.Constraint("Coincident", 0, 2, 1, 1))
sketch14.addConstraint(Sketcher.Constraint("Coincident", 1, 2, 2, 1))
sketch14.addConstraint(Sketcher.Constraint("Coincident", 2, 2, 3, 1))
sketch14.addConstraint(Sketcher.Constraint("Coincident", 3, 2, 0, 1))
sketch14.addConstraint(Sketcher.Constraint("Vertical", 0))
sketch14.addConstraint(Sketcher.Constraint("Horizontal", 1))
sketch14.addConstraint(Sketcher.Constraint("Vertical", 2))
sketch14.addConstraint(Sketcher.Constraint("Horizontal", 3))
sketch14.addConstraint(Sketcher.Constraint("Equal", 3, 0))
sketch14.addConstraint(Sketcher.Constraint("DistanceX", 1, 1, 1, 2, Q("1.5 mm")))
sketch14.addConstraint(Sketcher.Constraint("DistanceX", 1, 2, -1, 1, Q("50 mm")))
sketch14.addConstraint(Sketcher.Constraint("DistanceY", -1, 1, 2, 2, Q("23 mm")))
sketch14.setExpression("Constraints[9]", "Params.sketch14_width")
pocket3 = body.newObject("PartDesign::Pocket", "Pocket002")
pocket3.Profile = sketch14
pocket3.setExpression("Length", "Params.pocket3_length")

# Sketch on XY plane
sketch15 = body.newObject("Sketcher::SketchObject", "Sketch014")
sketch15.AttachmentSupport = (doc.getObject("XY_Plane"), [""])
sketch15.MapMode = "FlatFace"
sketch15.AttachmentOffset = App.Placement(Vector(0, 0, 7), App.Rotation())
sketch15.addGeometry(Part.LineSegment(Vector(50, 23, 0), Vector(50, 21.5, 0)), False)
sketch15.addGeometry(Part.LineSegment(Vector(50, 21.5, 0), Vector(51.5, 21.5, 0)), False)
sketch15.addGeometry(Part.LineSegment(Vector(51.5, 21.5, 0), Vector(51.5, 23, 0)), False)
sketch15.addGeometry(Part.LineSegment(Vector(51.5, 23, 0), Vector(50, 23, 0)), False)
sketch15.addConstraint(Sketcher.Constraint("Coincident", 0, 2, 1, 1))
sketch15.addConstraint(Sketcher.Constraint("Coincident", 1, 2, 2, 1))
sketch15.addConstraint(Sketcher.Constraint("Coincident", 2, 2, 3, 1))
sketch15.addConstraint(Sketcher.Constraint("Coincident", 3, 2, 0, 1))
sketch15.addConstraint(Sketcher.Constraint("Vertical", 0))
sketch15.addConstraint(Sketcher.Constraint("Horizontal", 1))
sketch15.addConstraint(Sketcher.Constraint("Vertical", 2))
sketch15.addConstraint(Sketcher.Constraint("Horizontal", 3))
sketch15.addConstraint(Sketcher.Constraint("Equal", 3, 0))
sketch15.addConstraint(Sketcher.Constraint("DistanceX", 1, 1, 1, 2, Q("1.5 mm")))
sketch15.addConstraint(Sketcher.Constraint("DistanceX", -1, 1, 0, 2, Q("50 mm")))
sketch15.addConstraint(Sketcher.Constraint("DistanceY", -1, 1, 2, 2, Q("23 mm")))
sketch15.setExpression("Constraints[9]", "Params.sketch15_width")
pocket4 = body.newObject("PartDesign::Pocket", "Pocket003")
pocket4.Profile = sketch15
pocket4.setExpression("Length", "Params.pocket4_length")

# Sketch on YZ plane
sketch16 = body.newObject("Sketcher::SketchObject", "Sketch015")
sketch16.AttachmentSupport = (doc.getObject("YZ_Plane"), [""])
sketch16.MapMode = "FlatFace"
sketch16.AttachmentOffset = App.Placement(Vector(0, 0, -50), App.Rotation())
sketch16.addGeometry(Part.LineSegment(Vector(29, 7, 0), Vector(23, 7, 0)), False)
sketch16.addGeometry(Part.LineSegment(Vector(23, 7, 0), Vector(23, 0, 0)), False)
sketch16.addGeometry(Part.LineSegment(Vector(23, 0, 0), Vector(29, 0, 0)), False)
sketch16.addGeometry(Part.LineSegment(Vector(29, 0, 0), Vector(29, 7, 0)), False)
sketch16.addConstraint(Sketcher.Constraint("Coincident", 0, 2, 1, 1))
sketch16.addConstraint(Sketcher.Constraint("Coincident", 1, 2, 2, 1))
sketch16.addConstraint(Sketcher.Constraint("Coincident", 2, 2, 3, 1))
sketch16.addConstraint(Sketcher.Constraint("Coincident", 3, 2, 0, 1))
sketch16.addConstraint(Sketcher.Constraint("Horizontal", 0))
sketch16.addConstraint(Sketcher.Constraint("Vertical", 1))
sketch16.addConstraint(Sketcher.Constraint("Horizontal", 2))
sketch16.addConstraint(Sketcher.Constraint("Vertical", 3))
sketch16.addConstraint(Sketcher.Constraint("PointOnObject", 1, 2, -1))
sketch16.addConstraint(Sketcher.Constraint("DistanceX", 0, 2, 0, 1, Q("6 mm")))
sketch16.addConstraint(Sketcher.Constraint("DistanceY", 1, 2, 1, 1, Q("7 mm")))
sketch16.addConstraint(Sketcher.Constraint("DistanceX", -1, 1, 0, 2, Q("23 mm")))
sketch16.setExpression("Constraints[9]", "Params.sketch16_width")
sketch16.setExpression("Constraints[10]", "Params.sketch16_height")
pad12 = body.newObject("PartDesign::Pad", "Pad011")
pad12.Profile = sketch16
pad12.setExpression("Length", "Params.pad12_length")

# Sketch on YZ plane
sketch17 = body.newObject("Sketcher::SketchObject", "Sketch016")
sketch17.AttachmentSupport = (doc.getObject("YZ_Plane"), [""])
sketch17.MapMode = "FlatFace"
sketch17.AttachmentOffset = App.Placement(Vector(0, 0, 50), App.Rotation())
sketch17.addGeometry(Part.LineSegment(Vector(29, 0, 0), Vector(23, 0, 0)), False)
sketch17.addGeometry(Part.LineSegment(Vector(23, 0, 0), Vector(23, 7, 0)), False)
sketch17.addGeometry(Part.LineSegment(Vector(23, 7, 0), Vector(29, 7, 0)), False)
sketch17.addGeometry(Part.LineSegment(Vector(29, 7, 0), Vector(29, 0, 0)), False)
sketch17.addConstraint(Sketcher.Constraint("Coincident", 0, 2, 1, 1))
sketch17.addConstraint(Sketcher.Constraint("Coincident", 1, 2, 2, 1))
sketch17.addConstraint(Sketcher.Constraint("Coincident", 2, 2, 3, 1))
sketch17.addConstraint(Sketcher.Constraint("Coincident", 3, 2, 0, 1))
sketch17.addConstraint(Sketcher.Constraint("Horizontal", 0))
sketch17.addConstraint(Sketcher.Constraint("Vertical", 1))
sketch17.addConstraint(Sketcher.Constraint("Horizontal", 2))
sketch17.addConstraint(Sketcher.Constraint("Vertical", 3))
sketch17.addConstraint(Sketcher.Constraint("PointOnObject", 0, 2, -1))
sketch17.addConstraint(Sketcher.Constraint("DistanceX", 0, 2, 0, 1, Q("6 mm")))
sketch17.addConstraint(Sketcher.Constraint("DistanceY", 1, 1, 1, 2, Q("7 mm")))
sketch17.addConstraint(Sketcher.Constraint("DistanceX", -1, 1, 0, 2, Q("23 mm")))
sketch17.setExpression("Constraints[9]", "Params.sketch17_width")
sketch17.setExpression("Constraints[10]", "Params.sketch17_height")
pad13 = body.newObject("PartDesign::Pad", "Pad012")
pad13.Profile = sketch17
pad13.setExpression("Length", "Params.pad13_length")
pad13.Reversed = True

# Sketch on YZ plane
sketch18 = body.newObject("Sketcher::SketchObject", "Sketch017")
sketch18.AttachmentSupport = (doc.getObject("YZ_Plane"), [""])
sketch18.MapMode = "FlatFace"
sketch18.AttachmentOffset = App.Placement(Vector(0, 0, -45), App.Rotation())
sketch18.addGeometry(Part.LineSegment(Vector(29, 7, 0), Vector(23, 7, 0)), False)
sketch18.addGeometry(Part.LineSegment(Vector(23, 7, 0), Vector(23, 0, 0)), False)
sketch18.addGeometry(Part.LineSegment(Vector(23, 0, 0), Vector(29, 0, 0)), False)
sketch18.addGeometry(Part.LineSegment(Vector(29, 0, 0), Vector(29, 7, 0)), False)
sketch18.addConstraint(Sketcher.Constraint("Coincident", 0, 2, 1, 1))
sketch18.addConstraint(Sketcher.Constraint("Coincident", 1, 2, 2, 1))
sketch18.addConstraint(Sketcher.Constraint("Coincident", 2, 2, 3, 1))
sketch18.addConstraint(Sketcher.Constraint("Coincident", 3, 2, 0, 1))
sketch18.addConstraint(Sketcher.Constraint("Horizontal", 0))
sketch18.addConstraint(Sketcher.Constraint("Vertical", 1))
sketch18.addConstraint(Sketcher.Constraint("Horizontal", 2))
sketch18.addConstraint(Sketcher.Constraint("Vertical", 3))
sketch18.addConstraint(Sketcher.Constraint("PointOnObject", 1, 2, -1))
sketch18.addConstraint(Sketcher.Constraint("DistanceX", 0, 2, 0, 1, Q("6 mm")))
sketch18.addConstraint(Sketcher.Constraint("DistanceY", 1, 2, 1, 1, Q("7 mm")))
sketch18.addConstraint(Sketcher.Constraint("DistanceX", -1, 1, 0, 2, Q("23 mm")))
sketch18.setExpression("Constraints[9]", "Params.sketch18_width")
sketch18.setExpression("Constraints[10]", "Params.sketch18_height")
pad14 = body.newObject("PartDesign::Pad", "Pad013")
pad14.Profile = sketch18
pad14.setExpression("Length", "Params.pad14_length")

# Sketch on YZ plane
sketch19 = body.newObject("Sketcher::SketchObject", "Sketch018")
sketch19.AttachmentSupport = (doc.getObject("YZ_Plane"), [""])
sketch19.MapMode = "FlatFace"
sketch19.AttachmentOffset = App.Placement(Vector(0, 0, 45), App.Rotation())
sketch19.addGeometry(Part.LineSegment(Vector(29, 0, 0), Vector(23, 0, 0)), False)
sketch19.addGeometry(Part.LineSegment(Vector(23, 0, 0), Vector(23, 7, 0)), False)
sketch19.addGeometry(Part.LineSegment(Vector(23, 7, 0), Vector(29, 7, 0)), False)
sketch19.addGeometry(Part.LineSegment(Vector(29, 7, 0), Vector(29, 0, 0)), False)
sketch19.addConstraint(Sketcher.Constraint("Coincident", 0, 2, 1, 1))
sketch19.addConstraint(Sketcher.Constraint("Coincident", 1, 2, 2, 1))
sketch19.addConstraint(Sketcher.Constraint("Coincident", 2, 2, 3, 1))
sketch19.addConstraint(Sketcher.Constraint("Coincident", 3, 2, 0, 1))
sketch19.addConstraint(Sketcher.Constraint("Horizontal", 0))
sketch19.addConstraint(Sketcher.Constraint("Vertical", 1))
sketch19.addConstraint(Sketcher.Constraint("Horizontal", 2))
sketch19.addConstraint(Sketcher.Constraint("Vertical", 3))
sketch19.addConstraint(Sketcher.Constraint("PointOnObject", 0, 2, -1))
sketch19.addConstraint(Sketcher.Constraint("DistanceX", 0, 2, 0, 1, Q("6 mm")))
sketch19.addConstraint(Sketcher.Constraint("DistanceY", 1, 1, 1, 2, Q("7 mm")))
sketch19.addConstraint(Sketcher.Constraint("DistanceX", -1, 1, 0, 2, Q("23 mm")))
sketch19.setExpression("Constraints[9]", "Params.sketch19_width")
sketch19.setExpression("Constraints[10]", "Params.sketch19_height")
pad15 = body.newObject("PartDesign::Pad", "Pad014")
pad15.Profile = sketch19
pad15.setExpression("Length", "Params.pad15_length")
pad15.Reversed = True

doc.recompute()
